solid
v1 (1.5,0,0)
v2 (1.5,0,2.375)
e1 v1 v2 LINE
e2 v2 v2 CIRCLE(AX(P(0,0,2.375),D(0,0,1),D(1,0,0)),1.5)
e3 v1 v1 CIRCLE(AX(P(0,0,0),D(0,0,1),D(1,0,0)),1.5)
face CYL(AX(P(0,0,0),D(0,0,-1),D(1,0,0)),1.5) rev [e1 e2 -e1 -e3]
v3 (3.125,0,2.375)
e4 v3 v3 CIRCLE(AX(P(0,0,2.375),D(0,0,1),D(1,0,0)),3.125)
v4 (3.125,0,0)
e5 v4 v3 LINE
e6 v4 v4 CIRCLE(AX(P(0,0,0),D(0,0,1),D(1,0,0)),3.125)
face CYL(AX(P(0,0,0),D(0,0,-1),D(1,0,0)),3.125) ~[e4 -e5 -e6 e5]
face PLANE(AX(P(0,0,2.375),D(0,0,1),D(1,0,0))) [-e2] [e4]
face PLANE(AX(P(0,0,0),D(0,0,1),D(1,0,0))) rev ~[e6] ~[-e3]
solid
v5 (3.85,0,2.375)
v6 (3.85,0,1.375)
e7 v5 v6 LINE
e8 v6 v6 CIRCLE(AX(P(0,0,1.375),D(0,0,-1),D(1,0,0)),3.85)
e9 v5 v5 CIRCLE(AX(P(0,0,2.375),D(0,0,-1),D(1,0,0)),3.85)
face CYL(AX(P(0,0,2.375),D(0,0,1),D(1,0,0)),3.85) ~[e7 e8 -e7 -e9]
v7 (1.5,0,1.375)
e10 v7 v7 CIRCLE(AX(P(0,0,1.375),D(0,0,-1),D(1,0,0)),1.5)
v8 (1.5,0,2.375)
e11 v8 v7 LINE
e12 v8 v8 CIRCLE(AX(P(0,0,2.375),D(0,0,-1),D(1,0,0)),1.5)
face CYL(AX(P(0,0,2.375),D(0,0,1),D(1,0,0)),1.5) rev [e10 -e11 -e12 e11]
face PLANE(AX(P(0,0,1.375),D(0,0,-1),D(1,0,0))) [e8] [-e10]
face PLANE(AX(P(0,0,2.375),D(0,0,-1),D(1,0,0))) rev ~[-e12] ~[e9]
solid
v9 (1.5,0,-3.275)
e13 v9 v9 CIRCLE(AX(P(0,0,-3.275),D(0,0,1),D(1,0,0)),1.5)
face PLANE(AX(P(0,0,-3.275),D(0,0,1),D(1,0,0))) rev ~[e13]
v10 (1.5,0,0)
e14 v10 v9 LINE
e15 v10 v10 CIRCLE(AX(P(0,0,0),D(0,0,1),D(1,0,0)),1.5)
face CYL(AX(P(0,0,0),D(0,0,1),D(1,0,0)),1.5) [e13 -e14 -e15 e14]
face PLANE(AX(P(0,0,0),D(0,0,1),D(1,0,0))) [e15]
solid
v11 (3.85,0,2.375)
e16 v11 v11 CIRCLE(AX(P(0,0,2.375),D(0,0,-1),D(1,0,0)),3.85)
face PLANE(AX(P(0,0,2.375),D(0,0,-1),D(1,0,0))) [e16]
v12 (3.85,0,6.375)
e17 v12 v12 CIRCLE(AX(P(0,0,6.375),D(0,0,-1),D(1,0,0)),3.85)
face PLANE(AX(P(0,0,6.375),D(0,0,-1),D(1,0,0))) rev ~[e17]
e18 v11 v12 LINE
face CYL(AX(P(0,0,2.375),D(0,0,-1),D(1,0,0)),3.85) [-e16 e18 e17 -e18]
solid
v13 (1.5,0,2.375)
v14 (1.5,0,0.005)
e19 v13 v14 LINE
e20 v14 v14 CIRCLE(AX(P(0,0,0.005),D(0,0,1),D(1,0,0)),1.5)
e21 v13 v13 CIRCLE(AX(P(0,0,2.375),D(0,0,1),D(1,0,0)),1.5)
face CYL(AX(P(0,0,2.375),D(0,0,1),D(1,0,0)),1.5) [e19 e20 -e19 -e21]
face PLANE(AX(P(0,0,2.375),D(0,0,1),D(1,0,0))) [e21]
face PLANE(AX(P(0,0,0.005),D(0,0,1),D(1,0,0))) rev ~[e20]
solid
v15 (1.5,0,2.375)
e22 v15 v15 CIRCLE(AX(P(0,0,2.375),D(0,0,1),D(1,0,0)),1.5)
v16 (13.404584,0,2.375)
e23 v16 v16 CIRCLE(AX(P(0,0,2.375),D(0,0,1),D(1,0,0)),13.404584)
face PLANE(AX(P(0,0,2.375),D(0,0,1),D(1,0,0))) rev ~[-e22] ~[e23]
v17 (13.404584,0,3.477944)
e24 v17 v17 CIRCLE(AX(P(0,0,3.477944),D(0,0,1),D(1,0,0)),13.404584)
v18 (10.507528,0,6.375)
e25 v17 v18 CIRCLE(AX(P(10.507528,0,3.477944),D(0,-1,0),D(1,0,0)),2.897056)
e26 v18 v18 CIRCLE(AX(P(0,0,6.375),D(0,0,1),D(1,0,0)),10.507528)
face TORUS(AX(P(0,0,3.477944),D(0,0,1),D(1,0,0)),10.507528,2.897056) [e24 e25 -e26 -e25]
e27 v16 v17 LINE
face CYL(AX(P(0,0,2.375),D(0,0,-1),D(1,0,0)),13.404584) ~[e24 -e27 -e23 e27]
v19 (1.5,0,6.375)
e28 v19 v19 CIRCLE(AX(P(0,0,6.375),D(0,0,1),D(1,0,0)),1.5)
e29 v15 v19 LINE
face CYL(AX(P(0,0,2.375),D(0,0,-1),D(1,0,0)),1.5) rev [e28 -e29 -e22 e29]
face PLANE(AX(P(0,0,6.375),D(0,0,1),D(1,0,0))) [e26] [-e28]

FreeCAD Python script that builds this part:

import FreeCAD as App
import Part
import Sketcher
from FreeCAD import Vector


def edges_at(feature, points):
    """Names of the edges that pass closest to the given points."""
    edges = feature.Shape.Edges
    near = lambda p: min(range(len(edges)), key=lambda i: edges[i].distToShape(Part.Vertex(*p))[0])
    return sorted({f"Edge{near(p) + 1}" for p in points})

doc = App.newDocument("Part")
body = doc.addObject("PartDesign::Body", "Body")

# Sketch on XY plane
sketch1 = body.newObject("Sketcher::SketchObject", "Sketch")
sketch1.AttachmentSupport = (doc.getObject("XY_Plane"), [""])
sketch1.MapMode = "FlatFace"
sketch1.addGeometry([
    Part.Circle(Vector(0, 0, 0), Vector(0, 0, 1), 3.125),
    Part.Circle(Vector(0, 0, 0), Vector(0, 0, 1), 1.5),
], False)
sketch1.addConstraint([
    Sketcher.Constraint("Coincident", 0, 3, -1, 1),
    Sketcher.Constraint("Coincident", 1, 3, -1, 1),
    Sketcher.Constraint("Diameter", 1, 3.0),
    Sketcher.Constraint("Diameter", 0, 6.25),
])
pad1 = body.newObject("PartDesign::Pad", "Pad")
pad1.Profile = sketch1
pad1.Length = 2.375
body2 = doc.addObject("PartDesign::Body", "Body001")

# Sketch on XY plane
sketch2 = body2.newObject("Sketcher::SketchObject", "Sketch001")
sketch2.AttachmentSupport = (doc.getObject("XY_Plane001"), [""])
sketch2.MapMode = "FlatFace"
sketch2.AttachmentOffset = App.Placement(Vector(0, 0, 2.375), App.Rotation())
sketch2.addGeometry([
    Part.Circle(Vector(0, 0, 0), Vector(0, 0, 1), 13.404584),
    Part.Circle(Vector(0, 0, 0), Vector(0, 0, 1), 1.5),
], False)
sketch2.addConstraint([
    Sketcher.Constraint("Coincident", 0, 3, -1, 1),
    Sketcher.Constraint("Coincident", 1, 3, -1, 1),
    Sketcher.Constraint("Diameter", 1, 3.0),
    Sketcher.Constraint("Diameter", 0, 26.809168),
])
pad2 = body2.newObject("PartDesign::Pad", "Pad001")
pad2.Profile = sketch2
pad2.Length = 4
doc.recompute()

fillet = body2.newObject("PartDesign::Fillet", "Fillet")
fillet.Base = (pad2, edges_at(pad2, [(-13.405, 0, 6.375)]))
fillet.Radius = 2.897056
body3 = doc.addObject("PartDesign::Body", "Body002")

# Sketch on XY plane
sketch3 = body3.newObject("Sketcher::SketchObject", "Sketch002")
sketch3.AttachmentSupport = (doc.getObject("XY_Plane002"), [""])
sketch3.MapMode = "FlatFace"
sketch3.AttachmentOffset = App.Placement(Vector(0, 0, 2.375), App.Rotation())
sketch3.addGeometry([
    Part.Circle(Vector(0, 0, 0), Vector(0, 0, 1), 3.85),
    Part.Circle(Vector(0, 0, 0), Vector(0, 0, 1), 1.5),
], False)
sketch3.addConstraint([
    Sketcher.Constraint("Coincident", 0, 3, -1, 1),
    Sketcher.Constraint("Coincident", 1, 3, -1, 1),
    Sketcher.Constraint("Diameter", 1, 3.0),
    Sketcher.Constraint("Diameter", 0, 7.7),
])
pad3 = body3.newObject("PartDesign::Pad", "Pad002")
pad3.Profile = sketch3
pad3.Length = 1
pad3.Reversed = True
body4 = doc.addObject("PartDesign::Body", "Body003")

# Sketch on XY plane
sketch4 = body4.newObject("Sketcher::SketchObject", "Sketch003")
sketch4.AttachmentSupport = (doc.getObject("XY_Plane003"), [""])
sketch4.MapMode = "FlatFace"
sketch4.AttachmentOffset = App.Placement(Vector(0, 0, 2.375), App.Rotation())
sketch4.addGeometry(Part.Circle(Vector(0, 0, 0), Vector(0, 0, 1), 3.85), False)
sketch4.addConstraint([
    Sketcher.Constraint("Coincident", 0, 3, -1, 1),
    Sketcher.Constraint("Diameter", 0, 7.7),
])
pad4 = body4.newObject("PartDesign::Pad", "Pad003")
pad4.Profile = sketch4
pad4.Length = 4
body5 = doc.addObject("PartDesign::Body", "Body004")

# Sketch on XY plane
sketch5 = body5.newObject("Sketcher::SketchObject", "Sketch004")
sketch5.AttachmentSupport = (doc.getObject("XY_Plane004"), [""])
sketch5.MapMode = "FlatFace"
sketch5.AttachmentOffset = App.Placement(Vector(0, 0, 2.375), App.Rotation())
sketch5.addGeometry(Part.Circle(Vector(0, 0, 0), Vector(0, 0, 1), 1.5), False)
sketch5.addConstraint([
    Sketcher.Constraint("Coincident", 0, 3, -1, 1),
    Sketcher.Constraint("Diameter", 0, 3.0),
])
pad5 = body5.newObject("PartDesign::Pad", "Pad004")
pad5.Profile = sketch5
pad5.Length = 2.37
pad5.Reversed = True
body6 = doc.addObject("PartDesign::Body", "Body005")

# Sketch on XY plane
sketch6 = body6.newObject("Sketcher::SketchObject", "Sketch005")
sketch6.AttachmentSupport = (doc.getObject("XY_Plane005"), [""])
sketch6.MapMode = "FlatFace"
sketch6.addGeometry(Part.Circle(Vector(0, 0, 0), Vector(0, 0, 1), 1.5), False)
sketch6.addConstraint([
    Sketcher.Constraint("Coincident", 0, 3, -1, 1),
    Sketcher.Constraint("Diameter", 0, 3.0),
])
pad6 = body6.newObject("PartDesign::Pad", "Pad005")
pad6.Profile = sketch6
pad6.Length = 3.275
pad6.Reversed = True

doc.recompute()
